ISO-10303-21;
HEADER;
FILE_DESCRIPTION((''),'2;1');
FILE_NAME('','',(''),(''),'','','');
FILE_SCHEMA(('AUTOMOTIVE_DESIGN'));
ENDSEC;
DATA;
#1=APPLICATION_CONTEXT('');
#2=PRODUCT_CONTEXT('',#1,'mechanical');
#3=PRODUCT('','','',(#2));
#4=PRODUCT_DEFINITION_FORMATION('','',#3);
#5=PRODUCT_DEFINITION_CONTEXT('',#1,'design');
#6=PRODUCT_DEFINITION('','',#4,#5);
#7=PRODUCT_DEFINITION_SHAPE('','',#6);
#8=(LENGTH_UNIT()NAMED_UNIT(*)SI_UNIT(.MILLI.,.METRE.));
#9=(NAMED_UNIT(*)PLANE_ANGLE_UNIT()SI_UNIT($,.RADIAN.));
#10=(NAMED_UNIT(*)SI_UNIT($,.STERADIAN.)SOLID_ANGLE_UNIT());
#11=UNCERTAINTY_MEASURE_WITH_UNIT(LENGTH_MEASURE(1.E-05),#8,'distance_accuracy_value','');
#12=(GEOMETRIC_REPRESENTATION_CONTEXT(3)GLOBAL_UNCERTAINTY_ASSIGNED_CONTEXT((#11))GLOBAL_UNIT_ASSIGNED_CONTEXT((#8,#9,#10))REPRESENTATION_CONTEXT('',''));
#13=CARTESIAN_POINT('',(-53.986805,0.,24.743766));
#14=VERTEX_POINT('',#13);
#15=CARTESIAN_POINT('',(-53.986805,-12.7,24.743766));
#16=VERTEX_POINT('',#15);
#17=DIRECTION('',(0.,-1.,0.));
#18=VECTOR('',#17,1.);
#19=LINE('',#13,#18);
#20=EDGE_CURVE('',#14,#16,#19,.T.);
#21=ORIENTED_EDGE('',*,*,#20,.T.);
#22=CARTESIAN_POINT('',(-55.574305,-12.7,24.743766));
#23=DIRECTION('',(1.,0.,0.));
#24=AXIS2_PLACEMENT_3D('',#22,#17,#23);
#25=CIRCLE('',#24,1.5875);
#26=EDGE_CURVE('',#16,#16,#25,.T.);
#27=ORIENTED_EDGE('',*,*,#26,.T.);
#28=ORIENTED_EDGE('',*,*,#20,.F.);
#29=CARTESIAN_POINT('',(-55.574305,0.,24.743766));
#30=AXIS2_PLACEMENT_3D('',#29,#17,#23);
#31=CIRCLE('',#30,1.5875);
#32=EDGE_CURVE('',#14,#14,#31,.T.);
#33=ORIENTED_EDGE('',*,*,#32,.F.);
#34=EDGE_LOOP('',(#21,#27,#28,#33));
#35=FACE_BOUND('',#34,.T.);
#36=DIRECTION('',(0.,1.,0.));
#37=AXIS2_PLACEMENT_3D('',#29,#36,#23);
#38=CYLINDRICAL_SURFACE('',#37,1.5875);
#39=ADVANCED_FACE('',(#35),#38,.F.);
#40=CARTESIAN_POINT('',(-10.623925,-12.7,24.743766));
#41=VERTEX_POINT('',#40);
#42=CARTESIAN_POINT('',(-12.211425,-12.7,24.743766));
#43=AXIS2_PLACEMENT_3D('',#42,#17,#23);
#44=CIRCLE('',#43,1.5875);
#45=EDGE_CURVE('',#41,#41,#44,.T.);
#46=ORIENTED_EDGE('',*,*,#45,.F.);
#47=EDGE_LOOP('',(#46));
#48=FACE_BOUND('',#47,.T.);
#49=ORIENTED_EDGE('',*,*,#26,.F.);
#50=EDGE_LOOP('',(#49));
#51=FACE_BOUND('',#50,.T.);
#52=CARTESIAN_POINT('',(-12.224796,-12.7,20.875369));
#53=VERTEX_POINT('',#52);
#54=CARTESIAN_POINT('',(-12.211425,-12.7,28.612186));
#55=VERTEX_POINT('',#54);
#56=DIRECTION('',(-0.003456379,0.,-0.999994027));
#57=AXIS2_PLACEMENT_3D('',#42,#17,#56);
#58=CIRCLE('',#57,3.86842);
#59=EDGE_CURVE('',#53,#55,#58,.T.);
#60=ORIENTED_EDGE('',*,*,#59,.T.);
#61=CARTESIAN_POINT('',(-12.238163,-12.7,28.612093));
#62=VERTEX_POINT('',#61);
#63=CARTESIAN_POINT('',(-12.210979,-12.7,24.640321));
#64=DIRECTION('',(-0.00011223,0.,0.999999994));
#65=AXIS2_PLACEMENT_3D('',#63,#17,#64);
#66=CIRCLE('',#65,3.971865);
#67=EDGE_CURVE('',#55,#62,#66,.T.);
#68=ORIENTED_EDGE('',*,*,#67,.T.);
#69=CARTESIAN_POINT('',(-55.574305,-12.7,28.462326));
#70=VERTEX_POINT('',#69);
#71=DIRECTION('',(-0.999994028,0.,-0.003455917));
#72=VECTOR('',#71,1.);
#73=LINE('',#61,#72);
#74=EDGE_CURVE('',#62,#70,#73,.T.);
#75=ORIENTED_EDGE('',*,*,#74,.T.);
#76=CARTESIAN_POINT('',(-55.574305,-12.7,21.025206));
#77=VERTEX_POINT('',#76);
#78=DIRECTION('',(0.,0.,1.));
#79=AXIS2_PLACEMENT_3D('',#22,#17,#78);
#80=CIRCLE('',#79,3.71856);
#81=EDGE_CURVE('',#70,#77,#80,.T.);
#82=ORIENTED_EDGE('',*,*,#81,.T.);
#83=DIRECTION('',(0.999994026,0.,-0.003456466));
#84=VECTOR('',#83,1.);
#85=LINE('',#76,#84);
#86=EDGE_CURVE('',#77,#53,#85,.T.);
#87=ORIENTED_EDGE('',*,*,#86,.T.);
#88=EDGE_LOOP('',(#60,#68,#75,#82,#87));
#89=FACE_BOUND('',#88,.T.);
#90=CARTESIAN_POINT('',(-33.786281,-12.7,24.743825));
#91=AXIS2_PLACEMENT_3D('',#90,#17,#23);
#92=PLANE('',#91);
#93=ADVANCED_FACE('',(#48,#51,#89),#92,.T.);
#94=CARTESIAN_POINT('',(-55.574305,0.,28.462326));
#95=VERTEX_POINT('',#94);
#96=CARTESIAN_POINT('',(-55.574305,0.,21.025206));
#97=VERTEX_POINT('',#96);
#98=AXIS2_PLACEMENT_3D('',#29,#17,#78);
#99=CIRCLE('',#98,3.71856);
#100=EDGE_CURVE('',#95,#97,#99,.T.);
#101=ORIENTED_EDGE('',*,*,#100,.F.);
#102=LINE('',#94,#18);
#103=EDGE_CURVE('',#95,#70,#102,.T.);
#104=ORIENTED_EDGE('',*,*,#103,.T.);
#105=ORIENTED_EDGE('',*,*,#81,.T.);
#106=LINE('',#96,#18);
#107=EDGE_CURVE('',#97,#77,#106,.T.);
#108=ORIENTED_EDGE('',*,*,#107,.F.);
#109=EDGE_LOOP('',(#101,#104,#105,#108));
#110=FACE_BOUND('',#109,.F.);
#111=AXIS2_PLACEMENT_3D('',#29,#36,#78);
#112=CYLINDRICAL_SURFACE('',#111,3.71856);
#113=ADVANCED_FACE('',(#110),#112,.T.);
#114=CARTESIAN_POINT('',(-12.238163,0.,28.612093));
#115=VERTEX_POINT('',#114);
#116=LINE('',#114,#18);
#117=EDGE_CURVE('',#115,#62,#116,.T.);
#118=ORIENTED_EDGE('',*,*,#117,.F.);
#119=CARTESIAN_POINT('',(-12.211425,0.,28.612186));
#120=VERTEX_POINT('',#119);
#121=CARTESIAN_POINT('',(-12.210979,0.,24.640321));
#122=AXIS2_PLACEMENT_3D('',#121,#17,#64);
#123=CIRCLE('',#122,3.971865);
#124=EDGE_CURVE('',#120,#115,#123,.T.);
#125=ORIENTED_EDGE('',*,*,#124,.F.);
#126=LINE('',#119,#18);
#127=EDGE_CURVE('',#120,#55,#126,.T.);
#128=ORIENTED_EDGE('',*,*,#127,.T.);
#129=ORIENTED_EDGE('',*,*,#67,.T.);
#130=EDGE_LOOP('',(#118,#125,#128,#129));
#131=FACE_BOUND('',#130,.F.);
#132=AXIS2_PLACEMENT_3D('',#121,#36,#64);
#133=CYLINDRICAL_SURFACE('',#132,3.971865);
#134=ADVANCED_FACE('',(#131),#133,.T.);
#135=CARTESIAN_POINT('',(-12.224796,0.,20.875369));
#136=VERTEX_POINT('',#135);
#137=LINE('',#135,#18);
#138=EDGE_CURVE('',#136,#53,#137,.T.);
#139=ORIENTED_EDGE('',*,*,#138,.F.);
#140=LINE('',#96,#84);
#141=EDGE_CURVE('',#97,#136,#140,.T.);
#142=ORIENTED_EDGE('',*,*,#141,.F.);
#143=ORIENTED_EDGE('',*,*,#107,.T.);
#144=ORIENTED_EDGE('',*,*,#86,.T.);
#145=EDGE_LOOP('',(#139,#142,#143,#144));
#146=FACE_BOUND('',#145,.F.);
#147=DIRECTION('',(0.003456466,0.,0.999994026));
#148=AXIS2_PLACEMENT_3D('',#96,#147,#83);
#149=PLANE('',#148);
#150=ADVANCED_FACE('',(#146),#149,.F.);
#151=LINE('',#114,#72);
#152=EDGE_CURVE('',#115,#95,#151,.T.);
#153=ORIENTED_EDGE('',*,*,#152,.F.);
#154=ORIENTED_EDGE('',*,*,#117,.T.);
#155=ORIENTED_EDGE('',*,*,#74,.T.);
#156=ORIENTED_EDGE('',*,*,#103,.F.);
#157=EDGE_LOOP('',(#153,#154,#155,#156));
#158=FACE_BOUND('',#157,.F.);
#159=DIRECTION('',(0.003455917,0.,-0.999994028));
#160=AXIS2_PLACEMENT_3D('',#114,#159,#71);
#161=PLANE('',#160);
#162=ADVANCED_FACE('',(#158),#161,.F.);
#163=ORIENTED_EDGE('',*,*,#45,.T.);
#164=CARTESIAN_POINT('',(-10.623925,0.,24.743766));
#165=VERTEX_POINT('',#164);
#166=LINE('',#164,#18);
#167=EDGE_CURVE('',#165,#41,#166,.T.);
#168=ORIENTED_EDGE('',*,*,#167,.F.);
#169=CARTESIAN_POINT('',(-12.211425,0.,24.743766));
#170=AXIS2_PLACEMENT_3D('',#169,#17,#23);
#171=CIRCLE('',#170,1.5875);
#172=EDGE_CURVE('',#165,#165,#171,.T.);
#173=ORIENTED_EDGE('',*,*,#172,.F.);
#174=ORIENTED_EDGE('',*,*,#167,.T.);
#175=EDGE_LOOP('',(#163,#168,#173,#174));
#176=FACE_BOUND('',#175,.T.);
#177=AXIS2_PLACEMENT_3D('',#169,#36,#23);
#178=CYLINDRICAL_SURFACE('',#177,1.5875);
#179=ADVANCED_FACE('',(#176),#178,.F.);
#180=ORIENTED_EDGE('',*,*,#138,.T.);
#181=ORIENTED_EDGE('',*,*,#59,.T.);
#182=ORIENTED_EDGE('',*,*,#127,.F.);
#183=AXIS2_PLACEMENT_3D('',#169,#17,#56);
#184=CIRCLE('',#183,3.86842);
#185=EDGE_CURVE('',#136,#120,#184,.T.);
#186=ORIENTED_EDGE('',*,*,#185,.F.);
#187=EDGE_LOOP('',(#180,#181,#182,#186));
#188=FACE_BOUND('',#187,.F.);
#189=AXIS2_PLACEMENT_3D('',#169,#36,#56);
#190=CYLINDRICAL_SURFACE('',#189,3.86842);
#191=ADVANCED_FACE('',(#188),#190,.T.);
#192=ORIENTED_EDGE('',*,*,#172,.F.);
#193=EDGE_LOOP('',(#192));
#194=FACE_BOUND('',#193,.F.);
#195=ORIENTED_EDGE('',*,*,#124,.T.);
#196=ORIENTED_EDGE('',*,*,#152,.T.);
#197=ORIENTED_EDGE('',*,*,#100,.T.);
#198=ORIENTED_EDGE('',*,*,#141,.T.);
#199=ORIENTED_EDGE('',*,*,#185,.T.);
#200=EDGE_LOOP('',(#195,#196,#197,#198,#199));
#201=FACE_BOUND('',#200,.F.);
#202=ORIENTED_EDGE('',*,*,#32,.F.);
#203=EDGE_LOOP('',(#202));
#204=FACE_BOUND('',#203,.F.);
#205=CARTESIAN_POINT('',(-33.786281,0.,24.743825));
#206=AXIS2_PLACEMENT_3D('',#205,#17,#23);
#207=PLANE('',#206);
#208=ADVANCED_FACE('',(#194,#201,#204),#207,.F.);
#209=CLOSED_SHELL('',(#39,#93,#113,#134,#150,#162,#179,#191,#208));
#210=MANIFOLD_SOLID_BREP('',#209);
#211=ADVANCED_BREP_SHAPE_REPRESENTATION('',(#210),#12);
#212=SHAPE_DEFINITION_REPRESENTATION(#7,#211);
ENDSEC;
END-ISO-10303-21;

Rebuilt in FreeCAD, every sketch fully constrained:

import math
import FreeCAD as App
import Part
import Sketcher
Q = App.Units.Quantity

doc = App.newDocument("Part")
body = doc.addObject("PartDesign::Body", "Body")

# Sketch on XZ plane
sketch1 = doc.addObject("Sketcher::SketchObject", "Sketch")
body.addObject(sketch1)
sketch1.AttachmentSupport = (doc.XZ_Plane, [""])
sketch1.MapMode = "FlatFace"
sketch1.addGeometry([
    Part.LineSegment(App.Vector(-12.238163, 28.612093, 0), App.Vector(-55.574305, 28.462326, 0)),  # 0
    Part.ArcOfCircle(Part.Circle(App.Vector(-55.574305, 24.743766, 0), App.Vector(0, 0, 1), 3.71856), math.radians(90), math.radians(270)),  # 1
    Part.LineSegment(App.Vector(-55.574305, 21.025206, 0), App.Vector(-12.224796, 20.875369, 0)),  # 2
    Part.ArcOfCircle(Part.Circle(App.Vector(-12.211425, 24.743766, 0), App.Vector(0, 0, 1), 3.86842), math.radians(-90.198036), math.radians(89.999996)),  # 3
    Part.ArcOfCircle(Part.Circle(App.Vector(-12.210979, 24.640321, 0), App.Vector(0, 0, 1), 3.971865), math.radians(90.00643), math.radians(90.39214)),  # 4
    Part.Circle(App.Vector(-55.574305, 24.743766, 0), App.Vector(0, 0, 1), 1.5875),  # 5
    Part.Circle(App.Vector(-12.211425, 24.743766, 0), App.Vector(0, 0, 1), 1.5875),  # 6
], False)
sketch1.addConstraint([
    Sketcher.Constraint("Coincident", 0, 2, 1, 1),
    Sketcher.Constraint("Coincident", 1, 2, 2, 1),
    Sketcher.Constraint("Tangent", 2, 2, 3, 1),
    Sketcher.Constraint("Coincident", 3, 2, 4, 1),
    Sketcher.Constraint("Coincident", 4, 2, 0, 1),
    Sketcher.Constraint("Coincident", 5, 3, 1, 3),
    Sketcher.Constraint("Coincident", 6, 3, 3, 3),
    Sketcher.Constraint("Equal", 5, 6),
    Sketcher.Constraint("Horizontal", 1, 3, 3, 3),
    Sketcher.Constraint("Vertical", 5, 3, 0, 2),
    Sketcher.Constraint("Vertical", 0, 2, 1, 2),
    Sketcher.Constraint("Vertical", 6, 3, 3, 2),
    Sketcher.Constraint("Diameter", 5, Q("0.125 in")),
    Sketcher.Constraint("Radius", 1, Q("0.1464 in")),
    Sketcher.Constraint("Radius", 3, Q("0.1523 in")),
    Sketcher.Constraint("Radius", 4, Q("3.971865 mm")),
    Sketcher.Constraint("DistanceX", 1, 3, 3, 3, Q("1.7072 in")),
    Sketcher.Constraint("Distance", 0, Q("43.336401 mm")),
    Sketcher.Constraint("DistanceX", 4, 3, -1, 1, Q("12.210979 mm")),
    Sketcher.Constraint("DistanceY", -1, 1, 4, 3, Q("24.640321 mm")),
    Sketcher.Constraint("DistanceY", 4, 3, 4, 2, Q("3.971772 mm")),
])
pad1 = doc.addObject("PartDesign::Pad", "Pad")
body.addObject(pad1)
pad1.Profile = sketch1
pad1.Length = Q("0.5 in")

doc.recompute()
